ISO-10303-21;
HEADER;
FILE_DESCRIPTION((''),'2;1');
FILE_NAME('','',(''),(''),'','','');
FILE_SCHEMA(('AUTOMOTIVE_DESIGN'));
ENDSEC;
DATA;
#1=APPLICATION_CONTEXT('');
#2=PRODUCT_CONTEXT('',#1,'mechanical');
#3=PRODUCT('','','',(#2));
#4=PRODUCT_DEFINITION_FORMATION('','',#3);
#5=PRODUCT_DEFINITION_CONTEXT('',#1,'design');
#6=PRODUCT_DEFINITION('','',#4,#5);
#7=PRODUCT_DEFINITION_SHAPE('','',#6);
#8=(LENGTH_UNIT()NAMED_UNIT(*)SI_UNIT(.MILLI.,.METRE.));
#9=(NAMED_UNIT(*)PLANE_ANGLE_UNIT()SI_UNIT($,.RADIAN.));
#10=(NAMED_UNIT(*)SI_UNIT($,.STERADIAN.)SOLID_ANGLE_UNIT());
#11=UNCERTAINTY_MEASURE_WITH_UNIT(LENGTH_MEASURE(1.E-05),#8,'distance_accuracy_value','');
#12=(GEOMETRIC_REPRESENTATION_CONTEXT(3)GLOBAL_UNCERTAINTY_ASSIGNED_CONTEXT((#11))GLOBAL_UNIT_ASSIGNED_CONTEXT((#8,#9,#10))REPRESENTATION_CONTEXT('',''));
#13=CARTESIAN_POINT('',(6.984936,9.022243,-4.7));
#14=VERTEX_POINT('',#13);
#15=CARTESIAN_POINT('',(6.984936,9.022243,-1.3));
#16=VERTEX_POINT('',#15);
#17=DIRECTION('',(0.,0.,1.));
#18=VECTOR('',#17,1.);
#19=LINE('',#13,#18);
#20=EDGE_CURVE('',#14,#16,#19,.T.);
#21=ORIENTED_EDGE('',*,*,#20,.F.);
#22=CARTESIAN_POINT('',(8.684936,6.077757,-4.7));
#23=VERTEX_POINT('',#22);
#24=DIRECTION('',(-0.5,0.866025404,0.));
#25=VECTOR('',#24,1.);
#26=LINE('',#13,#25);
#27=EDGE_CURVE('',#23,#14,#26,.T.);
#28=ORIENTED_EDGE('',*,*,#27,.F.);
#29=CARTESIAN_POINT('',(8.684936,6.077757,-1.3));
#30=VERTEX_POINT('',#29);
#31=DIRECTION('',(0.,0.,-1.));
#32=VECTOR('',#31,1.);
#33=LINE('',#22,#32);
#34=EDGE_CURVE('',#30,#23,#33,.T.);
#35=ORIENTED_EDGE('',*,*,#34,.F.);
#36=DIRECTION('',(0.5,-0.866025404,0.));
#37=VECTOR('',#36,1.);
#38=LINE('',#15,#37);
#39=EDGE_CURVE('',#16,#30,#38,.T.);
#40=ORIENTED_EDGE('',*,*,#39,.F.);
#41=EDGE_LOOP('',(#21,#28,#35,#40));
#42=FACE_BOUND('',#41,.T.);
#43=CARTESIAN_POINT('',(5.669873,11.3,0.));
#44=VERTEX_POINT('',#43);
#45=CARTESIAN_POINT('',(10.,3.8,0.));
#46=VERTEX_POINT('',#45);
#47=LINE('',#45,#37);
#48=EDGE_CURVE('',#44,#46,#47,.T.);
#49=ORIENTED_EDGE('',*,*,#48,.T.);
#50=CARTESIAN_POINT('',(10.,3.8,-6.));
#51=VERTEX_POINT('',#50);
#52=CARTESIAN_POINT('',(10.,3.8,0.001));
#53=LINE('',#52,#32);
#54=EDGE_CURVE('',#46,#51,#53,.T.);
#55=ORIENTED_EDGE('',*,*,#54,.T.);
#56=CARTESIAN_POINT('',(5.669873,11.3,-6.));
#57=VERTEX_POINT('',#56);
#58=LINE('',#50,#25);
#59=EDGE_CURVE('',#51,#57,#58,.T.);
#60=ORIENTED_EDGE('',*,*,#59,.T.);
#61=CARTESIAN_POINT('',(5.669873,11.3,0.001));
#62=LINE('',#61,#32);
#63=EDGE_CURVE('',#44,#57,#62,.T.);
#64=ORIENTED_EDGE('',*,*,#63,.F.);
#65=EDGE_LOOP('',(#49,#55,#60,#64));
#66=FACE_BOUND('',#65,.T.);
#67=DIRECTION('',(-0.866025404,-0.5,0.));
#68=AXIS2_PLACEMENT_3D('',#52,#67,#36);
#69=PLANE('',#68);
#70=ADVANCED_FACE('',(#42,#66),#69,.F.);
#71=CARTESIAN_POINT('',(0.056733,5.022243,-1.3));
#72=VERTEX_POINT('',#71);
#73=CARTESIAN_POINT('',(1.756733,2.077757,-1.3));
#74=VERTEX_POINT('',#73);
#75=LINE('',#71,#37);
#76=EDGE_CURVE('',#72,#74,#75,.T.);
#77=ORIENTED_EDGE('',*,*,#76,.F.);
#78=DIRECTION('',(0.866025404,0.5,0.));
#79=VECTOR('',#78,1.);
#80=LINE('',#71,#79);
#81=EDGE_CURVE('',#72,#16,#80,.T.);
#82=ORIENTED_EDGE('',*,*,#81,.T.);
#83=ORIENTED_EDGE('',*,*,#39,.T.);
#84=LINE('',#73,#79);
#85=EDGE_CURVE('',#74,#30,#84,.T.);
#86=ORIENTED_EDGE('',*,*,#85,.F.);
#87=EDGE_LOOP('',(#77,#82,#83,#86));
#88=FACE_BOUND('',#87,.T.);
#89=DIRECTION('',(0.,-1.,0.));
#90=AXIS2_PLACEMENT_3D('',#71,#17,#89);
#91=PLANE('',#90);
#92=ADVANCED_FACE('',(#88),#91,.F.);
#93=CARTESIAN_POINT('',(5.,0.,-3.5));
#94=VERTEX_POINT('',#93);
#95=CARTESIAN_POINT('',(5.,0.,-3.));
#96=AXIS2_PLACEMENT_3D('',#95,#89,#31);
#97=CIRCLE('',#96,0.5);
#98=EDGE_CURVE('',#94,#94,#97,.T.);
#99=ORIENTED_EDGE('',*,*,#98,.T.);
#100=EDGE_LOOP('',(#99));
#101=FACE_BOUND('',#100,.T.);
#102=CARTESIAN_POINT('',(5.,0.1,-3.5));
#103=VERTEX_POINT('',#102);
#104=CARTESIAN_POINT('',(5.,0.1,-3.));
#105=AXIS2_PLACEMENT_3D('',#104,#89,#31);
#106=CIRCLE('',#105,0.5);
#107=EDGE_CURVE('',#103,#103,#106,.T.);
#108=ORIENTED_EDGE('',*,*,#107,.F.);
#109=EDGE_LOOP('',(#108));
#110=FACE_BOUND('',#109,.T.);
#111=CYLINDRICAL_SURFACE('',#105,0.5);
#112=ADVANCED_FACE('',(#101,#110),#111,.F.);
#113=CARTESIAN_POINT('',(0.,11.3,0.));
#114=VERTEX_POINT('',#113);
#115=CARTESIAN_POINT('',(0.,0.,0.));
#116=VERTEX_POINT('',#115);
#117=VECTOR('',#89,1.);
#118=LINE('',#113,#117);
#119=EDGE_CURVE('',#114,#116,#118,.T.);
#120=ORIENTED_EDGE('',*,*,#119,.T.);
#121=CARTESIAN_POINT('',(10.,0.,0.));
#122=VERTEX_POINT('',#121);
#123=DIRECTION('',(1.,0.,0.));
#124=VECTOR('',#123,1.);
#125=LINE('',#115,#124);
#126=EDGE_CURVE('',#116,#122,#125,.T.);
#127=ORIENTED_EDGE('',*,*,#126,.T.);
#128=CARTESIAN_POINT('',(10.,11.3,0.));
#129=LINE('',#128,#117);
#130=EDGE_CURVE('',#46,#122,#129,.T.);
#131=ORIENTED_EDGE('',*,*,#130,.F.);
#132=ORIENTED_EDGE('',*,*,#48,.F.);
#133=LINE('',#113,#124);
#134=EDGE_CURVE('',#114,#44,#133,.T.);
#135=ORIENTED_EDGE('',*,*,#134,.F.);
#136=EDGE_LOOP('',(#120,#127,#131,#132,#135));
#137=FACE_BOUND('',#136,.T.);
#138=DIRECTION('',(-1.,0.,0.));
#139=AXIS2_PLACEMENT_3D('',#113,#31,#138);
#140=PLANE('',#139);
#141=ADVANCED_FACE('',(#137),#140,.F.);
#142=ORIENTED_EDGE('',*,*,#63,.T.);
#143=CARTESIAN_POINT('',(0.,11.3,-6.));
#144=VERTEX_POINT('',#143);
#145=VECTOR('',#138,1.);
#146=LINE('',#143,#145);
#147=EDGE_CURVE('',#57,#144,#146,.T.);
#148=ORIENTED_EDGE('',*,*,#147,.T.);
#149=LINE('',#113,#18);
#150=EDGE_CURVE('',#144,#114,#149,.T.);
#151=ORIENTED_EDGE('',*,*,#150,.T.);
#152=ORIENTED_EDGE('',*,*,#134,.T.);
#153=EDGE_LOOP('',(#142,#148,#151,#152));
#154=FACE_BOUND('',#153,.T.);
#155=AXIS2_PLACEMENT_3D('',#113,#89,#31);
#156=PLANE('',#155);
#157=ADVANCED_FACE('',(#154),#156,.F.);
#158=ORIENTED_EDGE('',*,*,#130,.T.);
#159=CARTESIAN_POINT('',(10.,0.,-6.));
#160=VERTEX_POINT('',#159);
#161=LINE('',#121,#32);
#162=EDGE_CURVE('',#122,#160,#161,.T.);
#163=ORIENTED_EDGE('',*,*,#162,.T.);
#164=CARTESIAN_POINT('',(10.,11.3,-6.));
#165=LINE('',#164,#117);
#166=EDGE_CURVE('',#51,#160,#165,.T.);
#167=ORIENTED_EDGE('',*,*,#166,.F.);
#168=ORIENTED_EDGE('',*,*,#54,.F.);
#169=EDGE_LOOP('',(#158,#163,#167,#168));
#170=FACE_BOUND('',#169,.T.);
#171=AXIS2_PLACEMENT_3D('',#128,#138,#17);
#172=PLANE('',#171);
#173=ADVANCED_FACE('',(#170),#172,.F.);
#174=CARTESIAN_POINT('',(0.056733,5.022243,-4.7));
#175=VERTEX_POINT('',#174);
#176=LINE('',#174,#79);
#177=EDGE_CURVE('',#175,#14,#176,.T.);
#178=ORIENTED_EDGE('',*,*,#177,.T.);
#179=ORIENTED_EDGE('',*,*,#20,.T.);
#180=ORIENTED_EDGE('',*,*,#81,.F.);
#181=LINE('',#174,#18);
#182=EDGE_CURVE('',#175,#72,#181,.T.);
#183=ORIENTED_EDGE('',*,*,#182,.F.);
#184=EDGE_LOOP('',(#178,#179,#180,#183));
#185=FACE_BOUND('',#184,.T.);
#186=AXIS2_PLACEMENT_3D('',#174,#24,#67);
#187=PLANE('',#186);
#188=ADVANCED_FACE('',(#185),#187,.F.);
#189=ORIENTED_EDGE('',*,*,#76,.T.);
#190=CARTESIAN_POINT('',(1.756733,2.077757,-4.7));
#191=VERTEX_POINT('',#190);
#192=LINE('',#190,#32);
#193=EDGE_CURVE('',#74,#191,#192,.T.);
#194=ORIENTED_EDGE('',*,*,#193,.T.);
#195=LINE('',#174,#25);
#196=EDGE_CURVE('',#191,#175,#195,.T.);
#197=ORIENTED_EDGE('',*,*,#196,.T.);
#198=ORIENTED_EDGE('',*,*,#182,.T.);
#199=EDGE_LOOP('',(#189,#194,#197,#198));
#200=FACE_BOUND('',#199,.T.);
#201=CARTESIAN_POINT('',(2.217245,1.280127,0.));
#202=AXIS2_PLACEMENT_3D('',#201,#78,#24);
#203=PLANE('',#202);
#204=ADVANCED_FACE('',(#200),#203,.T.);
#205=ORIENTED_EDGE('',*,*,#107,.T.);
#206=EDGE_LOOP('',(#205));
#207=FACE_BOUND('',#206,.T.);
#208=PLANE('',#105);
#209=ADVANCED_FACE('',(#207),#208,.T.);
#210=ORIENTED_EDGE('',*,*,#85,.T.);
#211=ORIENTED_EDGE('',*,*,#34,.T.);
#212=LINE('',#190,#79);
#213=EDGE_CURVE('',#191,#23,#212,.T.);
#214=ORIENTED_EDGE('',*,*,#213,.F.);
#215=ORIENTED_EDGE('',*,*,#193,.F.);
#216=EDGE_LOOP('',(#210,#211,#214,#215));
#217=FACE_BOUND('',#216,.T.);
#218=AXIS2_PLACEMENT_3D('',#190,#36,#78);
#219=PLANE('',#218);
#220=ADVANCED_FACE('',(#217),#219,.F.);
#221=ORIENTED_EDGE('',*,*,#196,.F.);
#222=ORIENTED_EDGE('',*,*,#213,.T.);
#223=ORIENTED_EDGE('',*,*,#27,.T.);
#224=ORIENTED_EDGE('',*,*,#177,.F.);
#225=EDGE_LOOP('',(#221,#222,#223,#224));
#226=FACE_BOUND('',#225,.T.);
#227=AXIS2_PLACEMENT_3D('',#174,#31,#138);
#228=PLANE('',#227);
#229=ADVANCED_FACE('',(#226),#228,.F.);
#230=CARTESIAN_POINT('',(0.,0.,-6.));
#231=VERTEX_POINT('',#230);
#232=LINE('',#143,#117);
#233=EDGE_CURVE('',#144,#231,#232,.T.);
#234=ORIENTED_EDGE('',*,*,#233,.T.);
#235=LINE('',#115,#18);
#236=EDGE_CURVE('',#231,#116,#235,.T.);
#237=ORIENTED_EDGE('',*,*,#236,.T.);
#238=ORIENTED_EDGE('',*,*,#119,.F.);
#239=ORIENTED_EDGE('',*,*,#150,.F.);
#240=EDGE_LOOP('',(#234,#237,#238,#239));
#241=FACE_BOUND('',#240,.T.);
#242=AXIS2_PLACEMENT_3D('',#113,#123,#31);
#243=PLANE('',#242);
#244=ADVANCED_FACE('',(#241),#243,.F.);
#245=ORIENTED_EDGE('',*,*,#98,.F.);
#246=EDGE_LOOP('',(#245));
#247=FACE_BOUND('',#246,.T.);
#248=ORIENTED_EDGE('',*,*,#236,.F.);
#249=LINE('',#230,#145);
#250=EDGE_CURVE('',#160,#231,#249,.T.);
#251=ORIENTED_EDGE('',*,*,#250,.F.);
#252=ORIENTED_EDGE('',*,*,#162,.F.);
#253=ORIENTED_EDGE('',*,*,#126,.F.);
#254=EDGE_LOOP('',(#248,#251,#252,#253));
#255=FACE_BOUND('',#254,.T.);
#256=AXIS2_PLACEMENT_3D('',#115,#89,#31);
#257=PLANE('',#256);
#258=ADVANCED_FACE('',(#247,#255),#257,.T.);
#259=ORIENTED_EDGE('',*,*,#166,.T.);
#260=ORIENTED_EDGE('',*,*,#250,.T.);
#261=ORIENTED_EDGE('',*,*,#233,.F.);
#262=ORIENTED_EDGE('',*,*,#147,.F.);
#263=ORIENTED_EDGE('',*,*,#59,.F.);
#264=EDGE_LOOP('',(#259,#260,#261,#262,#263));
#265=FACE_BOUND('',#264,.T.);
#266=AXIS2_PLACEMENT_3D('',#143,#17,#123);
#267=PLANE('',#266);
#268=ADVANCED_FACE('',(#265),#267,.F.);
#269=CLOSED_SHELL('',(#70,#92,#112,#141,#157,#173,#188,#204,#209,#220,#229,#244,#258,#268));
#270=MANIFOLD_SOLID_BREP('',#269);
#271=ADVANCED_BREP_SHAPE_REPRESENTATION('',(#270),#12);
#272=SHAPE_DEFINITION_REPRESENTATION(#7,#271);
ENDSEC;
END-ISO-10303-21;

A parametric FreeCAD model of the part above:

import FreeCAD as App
import Part
import Sketcher
from FreeCAD import Vector
Q = App.Units.Quantity


def add_polygon(sketch, points):
    """Adds a closed chain of lines whose ends are joined by coincident constraints."""
    first, n = sketch.GeometryCount, len(points)
    for a, b in zip(points, points[1:] + points[:1]):
        sketch.addGeometry(Part.LineSegment(App.Vector(*a, 0), App.Vector(*b, 0)), False)
    for i in range(n):
        sketch.addConstraint(Sketcher.Constraint("Coincident", first + i, 2, first + (i + 1) % n, 1))

doc = App.newDocument("Part")
body = doc.addObject("PartDesign::Body", "Body")

sketch1 = doc.addObject("Sketcher::SketchObject", "Sketch")
body.addObject(sketch1)
sketch1.AttachmentSupport = (doc.XZ_Plane, [""])
sketch1.MapMode = "FlatFace"
add_polygon(sketch1, [(0, -6), (0, 0), (10, 0), (10, -6)])
sketch1.addConstraint(Sketcher.Constraint("Vertical", 0))
sketch1.addConstraint(Sketcher.Constraint("Horizontal", 1))
sketch1.addConstraint(Sketcher.Constraint("Vertical", 2))
sketch1.addConstraint(Sketcher.Constraint("Horizontal", 3))
sketch1.addConstraint(Sketcher.Constraint("Coincident", 0, 2, -1, 1))
sketch1.addConstraint(Sketcher.Constraint("DistanceX", 1, 1, 1, 2, 10.0))
sketch1.addConstraint(Sketcher.Constraint("DistanceY", 0, 1, 0, 2, 6.0))
pad1 = doc.addObject("PartDesign::Pad", "Pad")
body.addObject(pad1)
pad1.Profile = sketch1
pad1.Length = 11.3
pad1.Reversed = True

sketch2 = doc.addObject("Sketcher::SketchObject", "Sketch001")
body.addObject(sketch2)
sketch2.AttachmentSupport = (doc.XY_Plane, [""])
sketch2.MapMode = "FlatFace"
sketch2.AttachmentOffset = App.Placement(Vector(0, 0, -6), App.Rotation())
add_polygon(sketch2, [(10, 3.8), (5.669873, 11.3), (10, 11.3)])
sketch2.addConstraint(Sketcher.Constraint("Horizontal", 1))
sketch2.addConstraint(Sketcher.Constraint("Vertical", 2))
sketch2.addConstraint(Sketcher.Constraint("Angle", 0, Q("120 deg")))
sketch2.addConstraint(Sketcher.Constraint("DistanceY", 2, 2, 2, 1, 7.5))
sketch2.addConstraint(Sketcher.Constraint("DistanceX", -1, 1, 1, 2, 10.0))
sketch2.addConstraint(Sketcher.Constraint("DistanceY", -1, 1, 0, 2, 11.3))
pocket1 = doc.addObject("PartDesign::Pocket", "Pocket")
body.addObject(pocket1)
pocket1.Profile = sketch2
pocket1.Type = "UpToFirst"
pocket1.Reversed = True

sketch3 = doc.addObject("Sketcher::SketchObject", "Sketch002")
body.addObject(sketch3)
sketch3.Placement = App.Placement(Vector(9.145448, 5.280127, 0), App.Rotation(Vector(0, 0, -1), Vector(-0.5, 0.866025404, 0), Vector(0.866025404, 0.5, 0), "ZXY"))
add_polygon(sketch3, [(1.3, 4.321024), (1.3, 0.921024), (4.7, 0.921024), (4.7, 4.321024)])
sketch3.addConstraint(Sketcher.Constraint("Vertical", 0))
sketch3.addConstraint(Sketcher.Constraint("Horizontal", 1))
sketch3.addConstraint(Sketcher.Constraint("Vertical", 2))
sketch3.addConstraint(Sketcher.Constraint("Horizontal", 3))
sketch3.addConstraint(Sketcher.Constraint("Equal", 3, 0))
sketch3.addConstraint(Sketcher.Constraint("DistanceX", 1, 1, 1, 2, 3.4))
sketch3.addConstraint(Sketcher.Constraint("DistanceX", -1, 1, 0, 2, 1.3))
sketch3.addConstraint(Sketcher.Constraint("DistanceY", -1, 1, 0, 2, 0.921024))
pocket2 = doc.addObject("PartDesign::Pocket", "Pocket001")
body.addObject(pocket2)
pocket2.Profile = sketch3
pocket2.Length = 8

sketch4 = doc.addObject("Sketcher::SketchObject", "Sketch003")
body.addObject(sketch4)
sketch4.AttachmentSupport = (doc.XZ_Plane, [""])
sketch4.MapMode = "FlatFace"
sketch4.addGeometry(Part.Circle(Vector(5, -3, 0), Vector(0, 0, 1), 0.5), False)
sketch4.addConstraint(Sketcher.Constraint("Diameter", 0, 1.0))
sketch4.addConstraint(Sketcher.Constraint("DistanceX", -1, 1, 0, 3, 5.0))
sketch4.addConstraint(Sketcher.Constraint("DistanceY", 0, 3, -1, 1, 3.0))
pocket3 = doc.addObject("PartDesign::Pocket", "Pocket002")
body.addObject(pocket3)
pocket3.Profile = sketch4
pocket3.Length = 0.1

doc.recompute()
